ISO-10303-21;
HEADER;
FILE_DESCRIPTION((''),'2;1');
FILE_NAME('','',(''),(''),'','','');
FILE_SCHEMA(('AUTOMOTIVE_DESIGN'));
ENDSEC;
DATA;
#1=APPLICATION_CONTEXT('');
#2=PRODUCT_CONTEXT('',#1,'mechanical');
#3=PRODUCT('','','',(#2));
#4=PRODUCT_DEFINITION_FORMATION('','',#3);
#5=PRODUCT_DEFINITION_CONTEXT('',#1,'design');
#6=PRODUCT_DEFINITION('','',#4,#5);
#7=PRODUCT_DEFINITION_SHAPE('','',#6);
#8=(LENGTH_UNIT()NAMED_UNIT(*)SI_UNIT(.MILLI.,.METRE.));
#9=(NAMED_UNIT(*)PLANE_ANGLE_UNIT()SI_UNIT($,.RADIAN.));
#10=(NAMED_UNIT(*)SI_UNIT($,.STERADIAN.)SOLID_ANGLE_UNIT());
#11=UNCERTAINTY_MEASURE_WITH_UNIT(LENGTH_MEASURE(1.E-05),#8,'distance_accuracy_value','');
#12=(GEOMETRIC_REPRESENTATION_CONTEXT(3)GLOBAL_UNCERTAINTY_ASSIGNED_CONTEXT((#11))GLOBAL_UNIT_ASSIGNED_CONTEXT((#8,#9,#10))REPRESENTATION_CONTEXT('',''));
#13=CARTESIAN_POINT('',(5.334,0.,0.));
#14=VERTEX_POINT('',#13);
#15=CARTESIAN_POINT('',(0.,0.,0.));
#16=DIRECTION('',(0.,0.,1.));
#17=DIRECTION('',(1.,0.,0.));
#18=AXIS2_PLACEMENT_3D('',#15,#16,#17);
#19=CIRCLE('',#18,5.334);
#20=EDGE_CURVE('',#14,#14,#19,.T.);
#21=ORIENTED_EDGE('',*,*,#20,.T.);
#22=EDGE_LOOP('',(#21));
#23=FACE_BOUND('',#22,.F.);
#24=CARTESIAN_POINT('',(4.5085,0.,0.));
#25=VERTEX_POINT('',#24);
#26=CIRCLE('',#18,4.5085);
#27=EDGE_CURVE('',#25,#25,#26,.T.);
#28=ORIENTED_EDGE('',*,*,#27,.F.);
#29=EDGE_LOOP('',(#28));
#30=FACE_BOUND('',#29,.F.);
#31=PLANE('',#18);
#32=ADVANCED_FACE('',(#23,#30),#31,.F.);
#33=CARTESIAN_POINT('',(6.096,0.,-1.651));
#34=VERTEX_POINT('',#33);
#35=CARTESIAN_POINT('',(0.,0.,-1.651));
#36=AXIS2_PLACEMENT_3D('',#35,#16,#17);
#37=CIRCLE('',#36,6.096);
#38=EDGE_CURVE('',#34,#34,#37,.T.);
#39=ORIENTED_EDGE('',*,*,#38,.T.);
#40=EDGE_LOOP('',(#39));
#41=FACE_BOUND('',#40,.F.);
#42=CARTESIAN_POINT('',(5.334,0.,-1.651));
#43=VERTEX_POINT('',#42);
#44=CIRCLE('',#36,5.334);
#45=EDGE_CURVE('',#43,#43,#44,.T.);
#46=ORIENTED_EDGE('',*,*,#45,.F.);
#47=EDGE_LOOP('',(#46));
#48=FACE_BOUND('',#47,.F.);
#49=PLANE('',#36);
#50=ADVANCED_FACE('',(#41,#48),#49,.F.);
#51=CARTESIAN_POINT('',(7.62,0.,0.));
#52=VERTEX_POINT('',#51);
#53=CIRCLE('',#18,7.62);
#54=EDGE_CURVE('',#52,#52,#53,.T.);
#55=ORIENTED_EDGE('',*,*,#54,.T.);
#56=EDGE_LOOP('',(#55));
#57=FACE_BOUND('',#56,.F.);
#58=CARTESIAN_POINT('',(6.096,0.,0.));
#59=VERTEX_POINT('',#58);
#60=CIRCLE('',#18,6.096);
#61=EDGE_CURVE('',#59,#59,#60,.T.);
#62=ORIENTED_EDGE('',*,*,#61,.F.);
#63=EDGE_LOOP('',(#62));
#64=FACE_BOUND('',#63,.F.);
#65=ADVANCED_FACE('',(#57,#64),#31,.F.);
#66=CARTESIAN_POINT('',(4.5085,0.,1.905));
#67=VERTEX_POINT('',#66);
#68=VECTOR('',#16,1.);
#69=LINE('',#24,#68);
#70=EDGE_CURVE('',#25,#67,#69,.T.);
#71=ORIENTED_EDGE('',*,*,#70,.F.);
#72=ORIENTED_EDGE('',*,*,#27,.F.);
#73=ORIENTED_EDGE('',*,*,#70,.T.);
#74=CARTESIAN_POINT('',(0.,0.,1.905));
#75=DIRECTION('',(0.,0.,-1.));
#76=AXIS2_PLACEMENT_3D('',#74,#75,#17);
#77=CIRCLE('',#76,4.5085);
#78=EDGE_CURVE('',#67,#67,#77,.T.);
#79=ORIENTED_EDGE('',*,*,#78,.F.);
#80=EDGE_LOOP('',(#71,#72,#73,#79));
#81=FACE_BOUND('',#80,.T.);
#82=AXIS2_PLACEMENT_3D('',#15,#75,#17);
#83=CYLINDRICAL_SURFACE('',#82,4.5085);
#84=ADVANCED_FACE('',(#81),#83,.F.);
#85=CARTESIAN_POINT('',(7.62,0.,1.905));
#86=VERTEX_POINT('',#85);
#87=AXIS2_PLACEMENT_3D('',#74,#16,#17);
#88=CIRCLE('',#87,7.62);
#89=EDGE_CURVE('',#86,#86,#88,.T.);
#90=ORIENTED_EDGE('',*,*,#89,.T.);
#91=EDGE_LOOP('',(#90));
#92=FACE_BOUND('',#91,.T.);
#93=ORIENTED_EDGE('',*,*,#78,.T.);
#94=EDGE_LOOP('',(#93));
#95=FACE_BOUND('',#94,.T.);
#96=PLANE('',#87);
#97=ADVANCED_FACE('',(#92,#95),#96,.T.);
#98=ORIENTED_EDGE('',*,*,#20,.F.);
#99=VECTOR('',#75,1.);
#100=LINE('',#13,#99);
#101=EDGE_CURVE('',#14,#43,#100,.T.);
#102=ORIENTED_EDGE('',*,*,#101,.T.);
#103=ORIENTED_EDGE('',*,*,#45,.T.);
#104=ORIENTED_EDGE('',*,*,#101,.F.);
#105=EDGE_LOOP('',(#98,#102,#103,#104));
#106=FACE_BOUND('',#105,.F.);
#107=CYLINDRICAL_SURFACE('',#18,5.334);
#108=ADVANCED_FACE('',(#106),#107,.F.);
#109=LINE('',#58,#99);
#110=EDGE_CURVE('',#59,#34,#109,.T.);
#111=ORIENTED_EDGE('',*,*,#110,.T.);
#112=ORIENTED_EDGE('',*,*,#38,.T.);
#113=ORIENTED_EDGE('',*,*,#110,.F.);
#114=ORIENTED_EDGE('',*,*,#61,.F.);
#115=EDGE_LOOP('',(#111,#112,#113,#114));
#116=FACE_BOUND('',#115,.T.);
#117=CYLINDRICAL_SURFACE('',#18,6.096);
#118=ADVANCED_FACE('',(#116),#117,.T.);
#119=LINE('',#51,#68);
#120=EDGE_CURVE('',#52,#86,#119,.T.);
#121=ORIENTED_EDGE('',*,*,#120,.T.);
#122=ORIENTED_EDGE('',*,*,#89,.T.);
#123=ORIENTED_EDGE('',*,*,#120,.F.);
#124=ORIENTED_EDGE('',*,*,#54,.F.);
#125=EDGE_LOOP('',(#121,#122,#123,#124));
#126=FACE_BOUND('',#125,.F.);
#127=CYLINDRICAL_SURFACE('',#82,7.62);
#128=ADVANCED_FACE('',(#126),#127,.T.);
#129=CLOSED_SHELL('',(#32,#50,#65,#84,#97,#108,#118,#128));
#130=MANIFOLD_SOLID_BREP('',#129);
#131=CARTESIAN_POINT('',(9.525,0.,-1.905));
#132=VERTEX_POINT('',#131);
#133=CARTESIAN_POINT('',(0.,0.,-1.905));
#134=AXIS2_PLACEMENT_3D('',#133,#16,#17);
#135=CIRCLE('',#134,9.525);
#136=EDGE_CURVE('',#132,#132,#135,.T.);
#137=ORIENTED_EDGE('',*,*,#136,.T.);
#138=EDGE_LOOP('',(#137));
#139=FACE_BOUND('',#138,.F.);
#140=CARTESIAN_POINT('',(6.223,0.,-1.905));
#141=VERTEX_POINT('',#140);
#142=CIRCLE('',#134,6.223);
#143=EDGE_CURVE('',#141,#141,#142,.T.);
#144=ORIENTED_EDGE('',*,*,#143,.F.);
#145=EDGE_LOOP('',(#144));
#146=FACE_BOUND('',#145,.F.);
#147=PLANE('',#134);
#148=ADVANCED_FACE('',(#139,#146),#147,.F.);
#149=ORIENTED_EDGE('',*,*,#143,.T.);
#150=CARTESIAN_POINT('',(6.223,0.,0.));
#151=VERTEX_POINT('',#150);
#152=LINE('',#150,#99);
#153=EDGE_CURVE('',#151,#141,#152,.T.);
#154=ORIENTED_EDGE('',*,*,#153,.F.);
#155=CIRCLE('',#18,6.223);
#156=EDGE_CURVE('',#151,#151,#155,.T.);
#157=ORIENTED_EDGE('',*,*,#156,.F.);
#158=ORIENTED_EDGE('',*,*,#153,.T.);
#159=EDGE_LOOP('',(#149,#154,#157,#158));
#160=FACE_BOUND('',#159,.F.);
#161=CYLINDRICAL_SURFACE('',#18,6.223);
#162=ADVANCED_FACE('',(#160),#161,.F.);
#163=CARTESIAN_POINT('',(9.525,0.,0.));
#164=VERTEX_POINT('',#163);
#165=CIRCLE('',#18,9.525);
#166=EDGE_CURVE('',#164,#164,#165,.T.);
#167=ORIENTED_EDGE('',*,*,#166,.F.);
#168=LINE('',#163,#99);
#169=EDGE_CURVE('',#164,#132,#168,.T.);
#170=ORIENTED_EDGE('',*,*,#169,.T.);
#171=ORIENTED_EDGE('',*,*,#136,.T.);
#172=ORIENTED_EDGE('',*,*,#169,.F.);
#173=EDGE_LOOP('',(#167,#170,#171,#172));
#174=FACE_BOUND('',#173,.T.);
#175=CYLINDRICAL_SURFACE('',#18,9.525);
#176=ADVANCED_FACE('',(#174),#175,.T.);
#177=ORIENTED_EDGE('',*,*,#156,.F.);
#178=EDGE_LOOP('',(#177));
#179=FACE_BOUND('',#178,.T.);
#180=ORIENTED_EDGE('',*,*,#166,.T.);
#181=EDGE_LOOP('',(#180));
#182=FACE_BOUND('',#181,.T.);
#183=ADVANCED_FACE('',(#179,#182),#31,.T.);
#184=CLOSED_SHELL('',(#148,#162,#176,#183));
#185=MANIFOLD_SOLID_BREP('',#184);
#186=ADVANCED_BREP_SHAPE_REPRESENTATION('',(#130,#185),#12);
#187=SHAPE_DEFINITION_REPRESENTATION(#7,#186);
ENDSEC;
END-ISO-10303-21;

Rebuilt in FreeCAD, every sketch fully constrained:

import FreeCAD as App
import Part
import Sketcher

V = App.Vector
Q = App.Units.Quantity

doc = App.newDocument("Part")
body = doc.addObject("PartDesign::Body", "Body")

# Sketch on XY plane
sketch1 = doc.addObject("Sketcher::SketchObject", "Sketch")
body.addObject(sketch1)
sketch1.AttachmentSupport = (doc.XY_Plane, [""])
sketch1.MapMode = "FlatFace"
sketch1.addGeometry(Part.Circle(V(0, 0, 0), V(0, 0, 1), 10), False)
sketch1.addGeometry(Part.Circle(V(0, 0, 0), V(0, 0, 1), 6), False)
sketch1.addConstraint(Sketcher.Constraint("Coincident", 0, 3, -1, 1))
sketch1.addConstraint(Sketcher.Constraint("Coincident", 1, 3, -1, 1))
sketch1.addConstraint(Sketcher.Constraint("Diameter", 0, Q("0.75 in")))
sketch1.addConstraint(Sketcher.Constraint("Diameter", 1, Q("0.49 in")))
pad1 = doc.addObject("PartDesign::Pad", "Pad")
body.addObject(pad1)
pad1.Profile = sketch1
pad1.Length = Q("0.075 in")
pad1.Reversed = True
body2 = doc.addObject("PartDesign::Body", "Body001")

# Sketch on XY plane
sketch2 = doc.addObject("Sketcher::SketchObject", "Sketch001")
body2.addObject(sketch2)
sketch2.AttachmentSupport = (doc.getObject("XY_Plane001"), [""])
sketch2.MapMode = "FlatFace"
sketch2.addGeometry(Part.Circle(V(0, 0, 0), V(0, 0, 1), 6), False)
sketch2.addGeometry(Part.Circle(V(0, 0, 0), V(0, 0, 1), 5), False)
sketch2.addConstraint(Sketcher.Constraint("Coincident", 0, 3, -1, 1))
sketch2.addConstraint(Sketcher.Constraint("Coincident", 1, 3, -1, 1))
sketch2.addConstraint(Sketcher.Constraint("Diameter", 0, Q("0.48 in")))
sketch2.addConstraint(Sketcher.Constraint("Diameter", 1, Q("0.42 in")))
pad2 = doc.addObject("PartDesign::Pad", "Pad001")
body2.addObject(pad2)
pad2.Profile = sketch2
pad2.Length = Q("0.065 in")
pad2.Reversed = True

# Sketch on XY plane
sketch3 = doc.addObject("Sketcher::SketchObject", "Sketch002")
body2.addObject(sketch3)
sketch3.AttachmentSupport = (doc.getObject("XY_Plane001"), [""])
sketch3.MapMode = "FlatFace"
sketch3.addGeometry(Part.Circle(V(0, 0, 0), V(0, 0, 1), 8), False)
sketch3.addConstraint(Sketcher.Constraint("Coincident", 0, 3, -1, 1))
sketch3.addConstraint(Sketcher.Constraint("Diameter", 0, Q("0.6 in")))
pad3 = doc.addObject("PartDesign::Pad", "Pad002")
body2.addObject(pad3)
pad3.Profile = sketch3
pad3.Length = Q("0.075 in")

# Sketch on XY plane
sketch4 = doc.addObject("Sketcher::SketchObject", "Sketch003")
body2.addObject(sketch4)
sketch4.AttachmentSupport = (doc.getObject("XY_Plane001"), [""])
sketch4.MapMode = "FlatFace"
sketch4.addGeometry(Part.Circle(V(0, 0, 0), V(0, 0, 1), 4.5), False)
sketch4.addConstraint(Sketcher.Constraint("Coincident", 0, 3, -1, 1))
sketch4.addConstraint(Sketcher.Constraint("Diameter", 0, Q("0.355 in")))
pocket1 = doc.addObject("PartDesign::Pocket", "Pocket")
body2.addObject(pocket1)
pocket1.Profile = sketch4
pocket1.Type = "ThroughAll"
pocket1.Reversed = True

doc.recompute()
